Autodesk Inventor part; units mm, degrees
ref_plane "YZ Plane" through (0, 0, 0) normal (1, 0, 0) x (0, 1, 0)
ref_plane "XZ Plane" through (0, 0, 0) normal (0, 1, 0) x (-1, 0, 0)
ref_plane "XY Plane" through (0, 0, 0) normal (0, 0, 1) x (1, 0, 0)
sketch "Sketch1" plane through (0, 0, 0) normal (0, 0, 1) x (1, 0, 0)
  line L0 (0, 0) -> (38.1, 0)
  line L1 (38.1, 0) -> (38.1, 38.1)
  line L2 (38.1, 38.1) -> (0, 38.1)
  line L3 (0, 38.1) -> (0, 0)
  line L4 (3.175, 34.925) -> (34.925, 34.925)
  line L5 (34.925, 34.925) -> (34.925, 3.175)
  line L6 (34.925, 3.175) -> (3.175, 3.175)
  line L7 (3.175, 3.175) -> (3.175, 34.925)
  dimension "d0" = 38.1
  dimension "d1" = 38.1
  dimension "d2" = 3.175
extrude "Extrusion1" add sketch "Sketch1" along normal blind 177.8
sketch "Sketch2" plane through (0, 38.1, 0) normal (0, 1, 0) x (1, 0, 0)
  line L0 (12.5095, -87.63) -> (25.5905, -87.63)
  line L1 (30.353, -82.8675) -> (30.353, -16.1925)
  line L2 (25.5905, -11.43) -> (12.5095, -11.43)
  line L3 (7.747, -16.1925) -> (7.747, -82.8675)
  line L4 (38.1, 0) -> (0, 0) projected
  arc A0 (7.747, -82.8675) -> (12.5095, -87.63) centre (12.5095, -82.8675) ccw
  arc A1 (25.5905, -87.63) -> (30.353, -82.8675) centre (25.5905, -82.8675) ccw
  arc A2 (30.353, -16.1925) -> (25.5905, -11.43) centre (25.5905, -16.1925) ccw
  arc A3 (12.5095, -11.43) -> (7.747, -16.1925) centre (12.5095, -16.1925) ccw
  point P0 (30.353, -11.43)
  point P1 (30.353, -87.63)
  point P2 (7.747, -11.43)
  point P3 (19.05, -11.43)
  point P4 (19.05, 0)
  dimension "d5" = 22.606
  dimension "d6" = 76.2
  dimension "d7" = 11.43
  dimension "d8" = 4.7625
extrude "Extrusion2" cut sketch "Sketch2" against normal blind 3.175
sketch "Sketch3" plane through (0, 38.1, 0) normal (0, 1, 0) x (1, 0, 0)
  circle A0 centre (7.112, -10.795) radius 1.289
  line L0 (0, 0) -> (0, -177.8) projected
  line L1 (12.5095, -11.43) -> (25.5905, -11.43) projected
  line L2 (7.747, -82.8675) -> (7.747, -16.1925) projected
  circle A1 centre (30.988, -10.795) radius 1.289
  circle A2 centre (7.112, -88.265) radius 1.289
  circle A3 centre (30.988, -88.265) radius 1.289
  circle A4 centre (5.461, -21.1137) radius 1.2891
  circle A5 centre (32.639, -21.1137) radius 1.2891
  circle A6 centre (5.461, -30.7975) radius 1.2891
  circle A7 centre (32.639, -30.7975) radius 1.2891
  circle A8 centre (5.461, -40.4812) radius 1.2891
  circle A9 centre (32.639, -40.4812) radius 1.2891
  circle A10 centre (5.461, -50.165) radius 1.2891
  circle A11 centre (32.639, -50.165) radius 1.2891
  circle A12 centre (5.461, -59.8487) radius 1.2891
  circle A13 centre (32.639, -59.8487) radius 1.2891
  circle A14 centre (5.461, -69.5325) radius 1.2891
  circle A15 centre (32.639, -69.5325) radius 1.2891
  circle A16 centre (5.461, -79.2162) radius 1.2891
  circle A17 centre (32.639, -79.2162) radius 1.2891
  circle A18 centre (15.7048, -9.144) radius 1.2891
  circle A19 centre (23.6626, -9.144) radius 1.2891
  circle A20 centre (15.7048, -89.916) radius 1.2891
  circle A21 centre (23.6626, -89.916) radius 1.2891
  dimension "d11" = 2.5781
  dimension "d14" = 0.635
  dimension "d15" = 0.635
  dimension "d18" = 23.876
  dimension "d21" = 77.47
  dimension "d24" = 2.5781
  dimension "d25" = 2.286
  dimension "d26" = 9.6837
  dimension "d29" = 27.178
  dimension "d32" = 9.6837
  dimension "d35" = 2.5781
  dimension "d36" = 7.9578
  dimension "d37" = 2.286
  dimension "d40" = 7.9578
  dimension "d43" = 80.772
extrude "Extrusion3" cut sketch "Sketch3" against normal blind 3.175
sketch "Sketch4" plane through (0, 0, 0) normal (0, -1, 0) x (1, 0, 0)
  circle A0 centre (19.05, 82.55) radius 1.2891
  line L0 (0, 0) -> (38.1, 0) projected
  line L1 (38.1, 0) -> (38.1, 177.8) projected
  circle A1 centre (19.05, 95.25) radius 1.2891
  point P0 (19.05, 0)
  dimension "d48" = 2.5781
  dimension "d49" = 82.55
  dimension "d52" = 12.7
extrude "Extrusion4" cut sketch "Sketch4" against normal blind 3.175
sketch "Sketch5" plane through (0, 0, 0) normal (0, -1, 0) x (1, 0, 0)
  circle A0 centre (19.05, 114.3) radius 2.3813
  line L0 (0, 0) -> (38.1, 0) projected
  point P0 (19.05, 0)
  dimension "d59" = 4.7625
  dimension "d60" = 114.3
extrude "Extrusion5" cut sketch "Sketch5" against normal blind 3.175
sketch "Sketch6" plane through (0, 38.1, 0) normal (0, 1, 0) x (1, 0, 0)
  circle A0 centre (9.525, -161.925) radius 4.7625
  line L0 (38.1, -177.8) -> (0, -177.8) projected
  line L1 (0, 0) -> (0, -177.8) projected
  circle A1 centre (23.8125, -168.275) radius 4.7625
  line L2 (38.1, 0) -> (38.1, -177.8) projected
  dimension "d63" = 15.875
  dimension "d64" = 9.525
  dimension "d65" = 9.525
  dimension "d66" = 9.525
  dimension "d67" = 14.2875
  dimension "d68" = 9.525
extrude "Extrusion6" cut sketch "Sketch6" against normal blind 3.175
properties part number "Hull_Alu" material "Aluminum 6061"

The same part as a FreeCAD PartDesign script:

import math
import FreeCAD as App
import Part
import Sketcher

V = App.Vector
Q = App.Units.Quantity


def add_polygon(sketch, points):
    """Adds a closed chain of lines whose ends are joined by coincident constraints."""
    first, n = sketch.GeometryCount, len(points)
    for a, b in zip(points, points[1:] + points[:1]):
        sketch.addGeometry(Part.LineSegment(App.Vector(*a, 0), App.Vector(*b, 0)), False)
    for i in range(n):
        sketch.addConstraint(Sketcher.Constraint("Coincident", first + i, 2, first + (i + 1) % n, 1))

doc = App.newDocument("Part")
body = doc.addObject("PartDesign::Body", "Body")

# Sketch on XY plane
sketch1 = body.newObject("Sketcher::SketchObject", "Sketch")
sketch1.AttachmentSupport = (doc.getObject("XY_Plane"), [""])
sketch1.MapMode = "FlatFace"
add_polygon(sketch1, [(0, 38.1), (0, 0), (38.1, 0), (38.1, 38.1)])  # lines 0-3
add_polygon(sketch1, [(3.175, 3.175), (3.175, 34.925), (34.925, 34.925), (34.925, 3.175)])  # lines 4-7
sketch1.addConstraint(Sketcher.Constraint("Vertical", 0))
sketch1.addConstraint(Sketcher.Constraint("Horizontal", 1))
sketch1.addConstraint(Sketcher.Constraint("Vertical", 2))
sketch1.addConstraint(Sketcher.Constraint("Horizontal", 3))
sketch1.addConstraint(Sketcher.Constraint("Vertical", 4))
sketch1.addConstraint(Sketcher.Constraint("Horizontal", 5))
sketch1.addConstraint(Sketcher.Constraint("Vertical", 6))
sketch1.addConstraint(Sketcher.Constraint("Horizontal", 7))
sketch1.addConstraint(Sketcher.Constraint("Coincident", 0, 2, -1, 1))
sketch1.addConstraint(Sketcher.Constraint("Equal", 3, 0))
sketch1.addConstraint(Sketcher.Constraint("Equal", 7, 4))
sketch1.addConstraint(Sketcher.Constraint("DistanceX", 1, 1, 1, 2, Q("1.5 in")))
sketch1.addConstraint(Sketcher.Constraint("DistanceX", -1, 1, 4, 2, Q("0.125 in")))
sketch1.addConstraint(Sketcher.Constraint("DistanceY", -1, 1, 6, 2, Q("0.125 in")))
sketch1.addConstraint(Sketcher.Constraint("DistanceY", 4, 2, 3, 2, Q("0.125 in")))
pad1 = body.newObject("PartDesign::Pad", "Pad")
pad1.Profile = sketch1
pad1.Length = Q("7 in")

# Sketch on XZ plane
sketch2 = body.newObject("Sketcher::SketchObject", "Sketch001")
sketch2.AttachmentSupport = (doc.getObject("XZ_Plane"), [""])
sketch2.MapMode = "FlatFace"
sketch2.AttachmentOffset = App.Placement(V(0, 0, -1.5 * 25.4), App.Rotation())
sketch2.addGeometry(Part.ArcOfCircle(Part.Circle(V(12.5095, 82.8675, 0), V(0, 0, 1), 4.7625), math.radians(90), math.radians(180)), False)
sketch2.addGeometry(Part.LineSegment(V(12.5095, 87.63, 0), V(25.5905, 87.63, 0)), False)
sketch2.addGeometry(Part.ArcOfCircle(Part.Circle(V(25.5905, 82.8675, 0), V(0, 0, 1), 4.7625), math.radians(0), math.radians(90)), False)
sketch2.addGeometry(Part.LineSegment(V(30.353, 82.8675, 0), V(30.353, 16.1925, 0)), False)
sketch2.addGeometry(Part.ArcOfCircle(Part.Circle(V(25.5905, 16.1925, 0), V(0, 0, 1), 4.7625), math.radians(-90), math.radians(0)), False)
sketch2.addGeometry(Part.LineSegment(V(25.5905, 11.43, 0), V(12.5095, 11.43, 0)), False)
sketch2.addGeometry(Part.ArcOfCircle(Part.Circle(V(12.5095, 16.1925, 0), V(0, 0, 1), 4.7625), math.radians(180), math.radians(270)), False)
sketch2.addGeometry(Part.LineSegment(V(7.747, 16.1925, 0), V(7.747, 82.8675, 0)), False)
sketch2.addConstraint(Sketcher.Constraint("Tangent", 0, 1, 1, 1))
sketch2.addConstraint(Sketcher.Constraint("Tangent", 1, 2, 2, 2))
sketch2.addConstraint(Sketcher.Constraint("Tangent", 2, 1, 3, 1))
sketch2.addConstraint(Sketcher.Constraint("Tangent", 3, 2, 4, 2))
sketch2.addConstraint(Sketcher.Constraint("Tangent", 4, 1, 5, 1))
sketch2.addConstraint(Sketcher.Constraint("Tangent", 5, 2, 6, 2))
sketch2.addConstraint(Sketcher.Constraint("Tangent", 6, 1, 7, 1))
sketch2.addConstraint(Sketcher.Constraint("Tangent", 7, 2, 0, 2))
sketch2.addConstraint(Sketcher.Constraint("Horizontal", 1))
sketch2.addConstraint(Sketcher.Constraint("Vertical", 3))
sketch2.addConstraint(Sketcher.Constraint("Horizontal", 5))
sketch2.addConstraint(Sketcher.Constraint("Vertical", 7))
sketch2.addConstraint(Sketcher.Constraint("Equal", 0, 2))
sketch2.addConstraint(Sketcher.Constraint("Equal", 2, 4))
sketch2.addConstraint(Sketcher.Constraint("Equal", 4, 6))
sketch2.addConstraint(Sketcher.Constraint("Radius", 0, Q("0.1875 in")))
sketch2.addConstraint(Sketcher.Constraint("DistanceY", -1, 1, 4, 1, Q("0.45 in")))
sketch2.addConstraint(Sketcher.Constraint("DistanceX", 6, 1, 3, 2, Q("0.89 in")))
sketch2.addConstraint(Sketcher.Constraint("DistanceY", 3, 2, 3, 1, Q("2.625 in")))
sketch2.addConstraint(Sketcher.Constraint("DistanceX", -1, 1, 2, 1, Q("1.195 in")))
pocket1 = body.newObject("PartDesign::Pocket", "Pocket")
pocket1.Profile = sketch2
pocket1.Length = Q("0.125 in")
pocket1.Reversed = True

# Sketch on XZ plane
sketch3 = body.newObject("Sketcher::SketchObject", "Sketch002")
sketch3.AttachmentSupport = (doc.getObject("XZ_Plane"), [""])
sketch3.MapMode = "FlatFace"
sketch3.AttachmentOffset = App.Placement(V(0, 0, -1.5 * 25.4), App.Rotation())
sketch3.addGeometry(Part.Circle(V(7.112, 10.795, 0), V(0, 0, 1), 1.289), False)
sketch3.addGeometry(Part.Circle(V(30.988, 10.795, 0), V(0, 0, 1), 1.289), False)
sketch3.addGeometry(Part.Circle(V(7.112, 88.265, 0), V(0, 0, 1), 1.289), False)
sketch3.addGeometry(Part.Circle(V(30.988, 88.265, 0), V(0, 0, 1), 1.289), False)
sketch3.addGeometry(Part.Circle(V(5.461, 21.1137, 0), V(0, 0, 1), 1.2891), False)
sketch3.addGeometry(Part.Circle(V(32.639, 21.1137, 0), V(0, 0, 1), 1.2891), False)
sketch3.addGeometry(Part.Circle(V(5.461, 30.7975, 0), V(0, 0, 1), 1.2891), False)
sketch3.addGeometry(Part.Circle(V(32.639, 30.7975, 0), V(0, 0, 1), 1.2891), False)
sketch3.addGeometry(Part.Circle(V(5.461, 40.4812, 0), V(0, 0, 1), 1.2891), False)
sketch3.addGeometry(Part.Circle(V(32.639, 40.4812, 0), V(0, 0, 1), 1.2891), False)
sketch3.addGeometry(Part.Circle(V(5.461, 50.165, 0), V(0, 0, 1), 1.2891), False)
sketch3.addGeometry(Part.Circle(V(32.639, 50.165, 0), V(0, 0, 1), 1.2891), False)
sketch3.addGeometry(Part.Circle(V(5.461, 59.8487, 0), V(0, 0, 1), 1.2891), False)
sketch3.addGeometry(Part.Circle(V(32.639, 59.8487, 0), V(0, 0, 1), 1.2891), False)
sketch3.addGeometry(Part.Circle(V(5.461, 69.5325, 0), V(0, 0, 1), 1.2891), False)
sketch3.addGeometry(Part.Circle(V(32.639, 69.5325, 0), V(0, 0, 1), 1.2891), False)
sketch3.addGeometry(Part.Circle(V(5.461, 79.2162, 0), V(0, 0, 1), 1.2891), False)
sketch3.addGeometry(Part.Circle(V(32.639, 79.2162, 0), V(0, 0, 1), 1.2891), False)
sketch3.addGeometry(Part.Circle(V(15.7048, 9.144, 0), V(0, 0, 1), 1.2891), False)
sketch3.addGeometry(Part.Circle(V(23.6626, 9.144, 0), V(0, 0, 1), 1.2891), False)
sketch3.addGeometry(Part.Circle(V(15.7048, 89.916, 0), V(0, 0, 1), 1.2891), False)
sketch3.addGeometry(Part.Circle(V(23.6626, 89.916, 0), V(0, 0, 1), 1.2891), False)
sketch3.addConstraint(Sketcher.Constraint("Equal", 0, 1))
sketch3.addConstraint(Sketcher.Constraint("Equal", 1, 2))
sketch3.addConstraint(Sketcher.Constraint("Equal", 2, 3))
sketch3.addConstraint(Sketcher.Constraint("Equal", 3, 4))
sketch3.addConstraint(Sketcher.Constraint("Equal", 4, 5))
sketch3.addConstraint(Sketcher.Constraint("Equal", 5, 6))
sketch3.addConstraint(Sketcher.Constraint("Equal", 6, 7))
sketch3.addConstraint(Sketcher.Constraint("Equal", 7, 8))
sketch3.addConstraint(Sketcher.Constraint("Equal", 8, 9))
sketch3.addConstraint(Sketcher.Constraint("Equal", 9, 10))
sketch3.addConstraint(Sketcher.Constraint("Equal", 10, 11))
sketch3.addConstraint(Sketcher.Constraint("Equal", 11, 12))
sketch3.addConstraint(Sketcher.Constraint("Equal", 12, 13))
sketch3.addConstraint(Sketcher.Constraint("Equal", 13, 14))
sketch3.addConstraint(Sketcher.Constraint("Equal", 14, 15))
sketch3.addConstraint(Sketcher.Constraint("Equal", 15, 16))
sketch3.addConstraint(Sketcher.Constraint("Equal", 16, 17))
sketch3.addConstraint(Sketcher.Constraint("Equal", 17, 18))
sketch3.addConstraint(Sketcher.Constraint("Equal", 18, 19))
sketch3.addConstraint(Sketcher.Constraint("Equal", 19, 20))
sketch3.addConstraint(Sketcher.Constraint("Equal", 20, 21))
sketch3.addConstraint(Sketcher.Constraint("Horizontal", 0, 3, 1, 3))
sketch3.addConstraint(Sketcher.Constraint("Horizontal", 2, 3, 3, 3))
sketch3.addConstraint(Sketcher.Constraint("Horizontal", 4, 3, 5, 3))
sketch3.addConstraint(Sketcher.Constraint("Horizontal", 6, 3, 7, 3))
sketch3.addConstraint(Sketcher.Constraint("Horizontal", 8, 3, 9, 3))
sketch3.addConstraint(Sketcher.Constraint("Horizontal", 10, 3, 11, 3))
sketch3.addConstraint(Sketcher.Constraint("Horizontal", 12, 3, 13, 3))
sketch3.addConstraint(Sketcher.Constraint("Horizontal", 14, 3, 15, 3))
sketch3.addConstraint(Sketcher.Constraint("Horizontal", 16, 3, 17, 3))
sketch3.addConstraint(Sketcher.Constraint("Horizontal", 18, 3, 19, 3))
sketch3.addConstraint(Sketcher.Constraint("Horizontal", 20, 3, 21, 3))
sketch3.addConstraint(Sketcher.Constraint("Vertical", 0, 3, 2, 3))
sketch3.addConstraint(Sketcher.Constraint("Vertical", 1, 3, 3, 3))
sketch3.addConstraint(Sketcher.Constraint("Vertical", 4, 3, 6, 3))
sketch3.addConstraint(Sketcher.Constraint("Vertical", 5, 3, 7, 3))
sketch3.addConstraint(Sketcher.Constraint("Vertical", 6, 3, 8, 3))
sketch3.addConstraint(Sketcher.Constraint("Vertical", 7, 3, 9, 3))
sketch3.addConstraint(Sketcher.Constraint("Vertical", 8, 3, 10, 3))
sketch3.addConstraint(Sketcher.Constraint("Vertical", 9, 3, 11, 3))
sketch3.addConstraint(Sketcher.Constraint("Vertical", 10, 3, 12, 3))
sketch3.addConstraint(Sketcher.Constraint("Vertical", 11, 3, 13, 3))
sketch3.addConstraint(Sketcher.Constraint("Vertical", 12, 3, 14, 3))
sketch3.addConstraint(Sketcher.Constraint("Vertical", 13, 3, 15, 3))
sketch3.addConstraint(Sketcher.Constraint("Vertical", 14, 3, 16, 3))
sketch3.addConstraint(Sketcher.Constraint("Vertical", 15, 3, 17, 3))
sketch3.addConstraint(Sketcher.Constraint("Vertical", 18, 3, 20, 3))
sketch3.addConstraint(Sketcher.Constraint("Vertical", 19, 3, 21, 3))
sketch3.addConstraint(Sketcher.Constraint("Diameter", 0, Q("0.1015 in")))
sketch3.addConstraint(Sketcher.Constraint("DistanceX", 0, 3, 1, 3, Q("0.94 in")))
sketch3.addConstraint(Sketcher.Constraint("DistanceY", 0, 3, 2, 3, Q("3.05 in")))
sketch3.addConstraint(Sketcher.Constraint("DistanceX", 4, 3, 5, 3, Q("1.07 in")))
sketch3.addConstraint(Sketcher.Constraint("DistanceX", 18, 3, 19, 3, Q("0.3133 in")))
sketch3.addConstraint(Sketcher.Constraint("DistanceX", -1, 1, 0, 3, Q("0.28 in")))
sketch3.addConstraint(Sketcher.Constraint("DistanceY", -1, 1, 18, 3, Q("0.36 in")))
sketch3.addConstraint(Sketcher.Constraint("DistanceY", -1, 1, 20, 3, Q("3.54 in")))
sketch3.addConstraint(Sketcher.Constraint("DistanceY", 4, 3, 6, 3, 9.6838))
sketch3.addConstraint(Sketcher.Constraint("DistanceY", 6, 3, 8, 3, 9.6837))
sketch3.addConstraint(Sketcher.Constraint("DistanceY", 8, 3, 10, 3, 9.6838))
sketch3.addConstraint(Sketcher.Constraint("DistanceY", 10, 3, 12, 3, 9.6837))
sketch3.addConstraint(Sketcher.Constraint("DistanceY", 12, 3, 14, 3, 9.6838))
sketch3.addConstraint(Sketcher.Constraint("DistanceY", 14, 3, 16, 3, 9.6837))
sketch3.addConstraint(Sketcher.Constraint("DistanceY", -1, 1, 0, 3, Q("0.425 in")))
sketch3.addConstraint(Sketcher.Constraint("DistanceX", -1, 1, 4, 3, Q("0.215 in")))
sketch3.addConstraint(Sketcher.Constraint("DistanceY", -1, 1, 8, 3, Q("1.593748 in")))
sketch3.addConstraint(Sketcher.Constraint("DistanceX", -1, 1, 18, 3, Q("0.6183 in")))
pocket2 = body.newObject("PartDesign::Pocket", "Pocket001")
pocket2.Profile = sketch3
pocket2.Length = Q("0.125 in")
pocket2.Reversed = True

# Sketch on XZ plane
sketch4 = body.newObject("Sketcher::SketchObject", "Sketch003")
sketch4.AttachmentSupport = (doc.getObject("XZ_Plane"), [""])
sketch4.MapMode = "FlatFace"
sketch4.addGeometry(Part.Circle(V(19.05, 82.55, 0), V(0, 0, 1), 1.2891), False)
sketch4.addGeometry(Part.Circle(V(19.05, 95.25, 0), V(0, 0, 1), 1.2891), False)
sketch4.addConstraint(Sketcher.Constraint("Equal", 0, 1))
sketch4.addConstraint(Sketcher.Constraint("Vertical", 0, 3, 1, 3))
sketch4.addConstraint(Sketcher.Constraint("Diameter", 0, Q("0.1015 in")))
sketch4.addConstraint(Sketcher.Constraint("DistanceY", 0, 3, 1, 3, Q("0.5 in")))
sketch4.addConstraint(Sketcher.Constraint("DistanceY", -1, 1, 0, 3, Q("3.25 in")))
sketch4.addConstraint(Sketcher.Constraint("DistanceX", -1, 1, 0, 3, Q("0.75 in")))
pocket3 = body.newObject("PartDesign::Pocket", "Pocket002")
pocket3.Profile = sketch4
pocket3.Length = Q("0.125 in")

# Sketch on XZ plane
sketch5 = body.newObject("Sketcher::SketchObject", "Sketch004")
sketch5.AttachmentSupport = (doc.getObject("XZ_Plane"), [""])
sketch5.MapMode = "FlatFace"
sketch5.addGeometry(Part.Circle(V(19.05, 114.3, 0), V(0, 0, 1), 2.3813), False)
sketch5.addConstraint(Sketcher.Constraint("Diameter", 0, Q("0.1875 in")))
sketch5.addConstraint(Sketcher.Constraint("DistanceY", -1, 1, 0, 3, Q("4.5 in")))
sketch5.addConstraint(Sketcher.Constraint("DistanceX", -1, 1, 0, 3, Q("0.75 in")))
pocket4 = body.newObject("PartDesign::Pocket", "Pocket003")
pocket4.Profile = sketch5
pocket4.Length = Q("0.125 in")

# Sketch on XZ plane
sketch6 = body.newObject("Sketcher::SketchObject", "Sketch005")
sketch6.AttachmentSupport = (doc.getObject("XZ_Plane"), [""])
sketch6.MapMode = "FlatFace"
sketch6.AttachmentOffset = App.Placement(V(0, 0, -1.5 * 25.4), App.Rotation())
sketch6.addGeometry(Part.Circle(V(9.525, 161.925, 0), V(0, 0, 1), 4.7625), False)
sketch6.addGeometry(Part.Circle(V(23.8125, 168.275, 0), V(0, 0, 1), 4.7625), False)
sketch6.addConstraint(Sketcher.Constraint("Equal", 0, 1))
sketch6.addConstraint(Sketcher.Constraint("Diameter", 0, Q("0.375 in")))
sketch6.addConstraint(Sketcher.Constraint("DistanceX", -1, 1, 0, 3, Q("0.375 in")))
sketch6.addConstraint(Sketcher.Constraint("DistanceX", 0, 3, 1, 3, Q("0.5625 in")))
sketch6.addConstraint(Sketcher.Constraint("DistanceY", 0, 3, 1, 3, Q("0.25 in")))
sketch6.addConstraint(Sketcher.Constraint("DistanceY", -1, 1, 0, 3, Q("6.375 in")))
pocket5 = body.newObject("PartDesign::Pocket", "Pocket004")
pocket5.Profile = sketch6
pocket5.Length = Q("0.125 in")
pocket5.Reversed = True

doc.recompute()
